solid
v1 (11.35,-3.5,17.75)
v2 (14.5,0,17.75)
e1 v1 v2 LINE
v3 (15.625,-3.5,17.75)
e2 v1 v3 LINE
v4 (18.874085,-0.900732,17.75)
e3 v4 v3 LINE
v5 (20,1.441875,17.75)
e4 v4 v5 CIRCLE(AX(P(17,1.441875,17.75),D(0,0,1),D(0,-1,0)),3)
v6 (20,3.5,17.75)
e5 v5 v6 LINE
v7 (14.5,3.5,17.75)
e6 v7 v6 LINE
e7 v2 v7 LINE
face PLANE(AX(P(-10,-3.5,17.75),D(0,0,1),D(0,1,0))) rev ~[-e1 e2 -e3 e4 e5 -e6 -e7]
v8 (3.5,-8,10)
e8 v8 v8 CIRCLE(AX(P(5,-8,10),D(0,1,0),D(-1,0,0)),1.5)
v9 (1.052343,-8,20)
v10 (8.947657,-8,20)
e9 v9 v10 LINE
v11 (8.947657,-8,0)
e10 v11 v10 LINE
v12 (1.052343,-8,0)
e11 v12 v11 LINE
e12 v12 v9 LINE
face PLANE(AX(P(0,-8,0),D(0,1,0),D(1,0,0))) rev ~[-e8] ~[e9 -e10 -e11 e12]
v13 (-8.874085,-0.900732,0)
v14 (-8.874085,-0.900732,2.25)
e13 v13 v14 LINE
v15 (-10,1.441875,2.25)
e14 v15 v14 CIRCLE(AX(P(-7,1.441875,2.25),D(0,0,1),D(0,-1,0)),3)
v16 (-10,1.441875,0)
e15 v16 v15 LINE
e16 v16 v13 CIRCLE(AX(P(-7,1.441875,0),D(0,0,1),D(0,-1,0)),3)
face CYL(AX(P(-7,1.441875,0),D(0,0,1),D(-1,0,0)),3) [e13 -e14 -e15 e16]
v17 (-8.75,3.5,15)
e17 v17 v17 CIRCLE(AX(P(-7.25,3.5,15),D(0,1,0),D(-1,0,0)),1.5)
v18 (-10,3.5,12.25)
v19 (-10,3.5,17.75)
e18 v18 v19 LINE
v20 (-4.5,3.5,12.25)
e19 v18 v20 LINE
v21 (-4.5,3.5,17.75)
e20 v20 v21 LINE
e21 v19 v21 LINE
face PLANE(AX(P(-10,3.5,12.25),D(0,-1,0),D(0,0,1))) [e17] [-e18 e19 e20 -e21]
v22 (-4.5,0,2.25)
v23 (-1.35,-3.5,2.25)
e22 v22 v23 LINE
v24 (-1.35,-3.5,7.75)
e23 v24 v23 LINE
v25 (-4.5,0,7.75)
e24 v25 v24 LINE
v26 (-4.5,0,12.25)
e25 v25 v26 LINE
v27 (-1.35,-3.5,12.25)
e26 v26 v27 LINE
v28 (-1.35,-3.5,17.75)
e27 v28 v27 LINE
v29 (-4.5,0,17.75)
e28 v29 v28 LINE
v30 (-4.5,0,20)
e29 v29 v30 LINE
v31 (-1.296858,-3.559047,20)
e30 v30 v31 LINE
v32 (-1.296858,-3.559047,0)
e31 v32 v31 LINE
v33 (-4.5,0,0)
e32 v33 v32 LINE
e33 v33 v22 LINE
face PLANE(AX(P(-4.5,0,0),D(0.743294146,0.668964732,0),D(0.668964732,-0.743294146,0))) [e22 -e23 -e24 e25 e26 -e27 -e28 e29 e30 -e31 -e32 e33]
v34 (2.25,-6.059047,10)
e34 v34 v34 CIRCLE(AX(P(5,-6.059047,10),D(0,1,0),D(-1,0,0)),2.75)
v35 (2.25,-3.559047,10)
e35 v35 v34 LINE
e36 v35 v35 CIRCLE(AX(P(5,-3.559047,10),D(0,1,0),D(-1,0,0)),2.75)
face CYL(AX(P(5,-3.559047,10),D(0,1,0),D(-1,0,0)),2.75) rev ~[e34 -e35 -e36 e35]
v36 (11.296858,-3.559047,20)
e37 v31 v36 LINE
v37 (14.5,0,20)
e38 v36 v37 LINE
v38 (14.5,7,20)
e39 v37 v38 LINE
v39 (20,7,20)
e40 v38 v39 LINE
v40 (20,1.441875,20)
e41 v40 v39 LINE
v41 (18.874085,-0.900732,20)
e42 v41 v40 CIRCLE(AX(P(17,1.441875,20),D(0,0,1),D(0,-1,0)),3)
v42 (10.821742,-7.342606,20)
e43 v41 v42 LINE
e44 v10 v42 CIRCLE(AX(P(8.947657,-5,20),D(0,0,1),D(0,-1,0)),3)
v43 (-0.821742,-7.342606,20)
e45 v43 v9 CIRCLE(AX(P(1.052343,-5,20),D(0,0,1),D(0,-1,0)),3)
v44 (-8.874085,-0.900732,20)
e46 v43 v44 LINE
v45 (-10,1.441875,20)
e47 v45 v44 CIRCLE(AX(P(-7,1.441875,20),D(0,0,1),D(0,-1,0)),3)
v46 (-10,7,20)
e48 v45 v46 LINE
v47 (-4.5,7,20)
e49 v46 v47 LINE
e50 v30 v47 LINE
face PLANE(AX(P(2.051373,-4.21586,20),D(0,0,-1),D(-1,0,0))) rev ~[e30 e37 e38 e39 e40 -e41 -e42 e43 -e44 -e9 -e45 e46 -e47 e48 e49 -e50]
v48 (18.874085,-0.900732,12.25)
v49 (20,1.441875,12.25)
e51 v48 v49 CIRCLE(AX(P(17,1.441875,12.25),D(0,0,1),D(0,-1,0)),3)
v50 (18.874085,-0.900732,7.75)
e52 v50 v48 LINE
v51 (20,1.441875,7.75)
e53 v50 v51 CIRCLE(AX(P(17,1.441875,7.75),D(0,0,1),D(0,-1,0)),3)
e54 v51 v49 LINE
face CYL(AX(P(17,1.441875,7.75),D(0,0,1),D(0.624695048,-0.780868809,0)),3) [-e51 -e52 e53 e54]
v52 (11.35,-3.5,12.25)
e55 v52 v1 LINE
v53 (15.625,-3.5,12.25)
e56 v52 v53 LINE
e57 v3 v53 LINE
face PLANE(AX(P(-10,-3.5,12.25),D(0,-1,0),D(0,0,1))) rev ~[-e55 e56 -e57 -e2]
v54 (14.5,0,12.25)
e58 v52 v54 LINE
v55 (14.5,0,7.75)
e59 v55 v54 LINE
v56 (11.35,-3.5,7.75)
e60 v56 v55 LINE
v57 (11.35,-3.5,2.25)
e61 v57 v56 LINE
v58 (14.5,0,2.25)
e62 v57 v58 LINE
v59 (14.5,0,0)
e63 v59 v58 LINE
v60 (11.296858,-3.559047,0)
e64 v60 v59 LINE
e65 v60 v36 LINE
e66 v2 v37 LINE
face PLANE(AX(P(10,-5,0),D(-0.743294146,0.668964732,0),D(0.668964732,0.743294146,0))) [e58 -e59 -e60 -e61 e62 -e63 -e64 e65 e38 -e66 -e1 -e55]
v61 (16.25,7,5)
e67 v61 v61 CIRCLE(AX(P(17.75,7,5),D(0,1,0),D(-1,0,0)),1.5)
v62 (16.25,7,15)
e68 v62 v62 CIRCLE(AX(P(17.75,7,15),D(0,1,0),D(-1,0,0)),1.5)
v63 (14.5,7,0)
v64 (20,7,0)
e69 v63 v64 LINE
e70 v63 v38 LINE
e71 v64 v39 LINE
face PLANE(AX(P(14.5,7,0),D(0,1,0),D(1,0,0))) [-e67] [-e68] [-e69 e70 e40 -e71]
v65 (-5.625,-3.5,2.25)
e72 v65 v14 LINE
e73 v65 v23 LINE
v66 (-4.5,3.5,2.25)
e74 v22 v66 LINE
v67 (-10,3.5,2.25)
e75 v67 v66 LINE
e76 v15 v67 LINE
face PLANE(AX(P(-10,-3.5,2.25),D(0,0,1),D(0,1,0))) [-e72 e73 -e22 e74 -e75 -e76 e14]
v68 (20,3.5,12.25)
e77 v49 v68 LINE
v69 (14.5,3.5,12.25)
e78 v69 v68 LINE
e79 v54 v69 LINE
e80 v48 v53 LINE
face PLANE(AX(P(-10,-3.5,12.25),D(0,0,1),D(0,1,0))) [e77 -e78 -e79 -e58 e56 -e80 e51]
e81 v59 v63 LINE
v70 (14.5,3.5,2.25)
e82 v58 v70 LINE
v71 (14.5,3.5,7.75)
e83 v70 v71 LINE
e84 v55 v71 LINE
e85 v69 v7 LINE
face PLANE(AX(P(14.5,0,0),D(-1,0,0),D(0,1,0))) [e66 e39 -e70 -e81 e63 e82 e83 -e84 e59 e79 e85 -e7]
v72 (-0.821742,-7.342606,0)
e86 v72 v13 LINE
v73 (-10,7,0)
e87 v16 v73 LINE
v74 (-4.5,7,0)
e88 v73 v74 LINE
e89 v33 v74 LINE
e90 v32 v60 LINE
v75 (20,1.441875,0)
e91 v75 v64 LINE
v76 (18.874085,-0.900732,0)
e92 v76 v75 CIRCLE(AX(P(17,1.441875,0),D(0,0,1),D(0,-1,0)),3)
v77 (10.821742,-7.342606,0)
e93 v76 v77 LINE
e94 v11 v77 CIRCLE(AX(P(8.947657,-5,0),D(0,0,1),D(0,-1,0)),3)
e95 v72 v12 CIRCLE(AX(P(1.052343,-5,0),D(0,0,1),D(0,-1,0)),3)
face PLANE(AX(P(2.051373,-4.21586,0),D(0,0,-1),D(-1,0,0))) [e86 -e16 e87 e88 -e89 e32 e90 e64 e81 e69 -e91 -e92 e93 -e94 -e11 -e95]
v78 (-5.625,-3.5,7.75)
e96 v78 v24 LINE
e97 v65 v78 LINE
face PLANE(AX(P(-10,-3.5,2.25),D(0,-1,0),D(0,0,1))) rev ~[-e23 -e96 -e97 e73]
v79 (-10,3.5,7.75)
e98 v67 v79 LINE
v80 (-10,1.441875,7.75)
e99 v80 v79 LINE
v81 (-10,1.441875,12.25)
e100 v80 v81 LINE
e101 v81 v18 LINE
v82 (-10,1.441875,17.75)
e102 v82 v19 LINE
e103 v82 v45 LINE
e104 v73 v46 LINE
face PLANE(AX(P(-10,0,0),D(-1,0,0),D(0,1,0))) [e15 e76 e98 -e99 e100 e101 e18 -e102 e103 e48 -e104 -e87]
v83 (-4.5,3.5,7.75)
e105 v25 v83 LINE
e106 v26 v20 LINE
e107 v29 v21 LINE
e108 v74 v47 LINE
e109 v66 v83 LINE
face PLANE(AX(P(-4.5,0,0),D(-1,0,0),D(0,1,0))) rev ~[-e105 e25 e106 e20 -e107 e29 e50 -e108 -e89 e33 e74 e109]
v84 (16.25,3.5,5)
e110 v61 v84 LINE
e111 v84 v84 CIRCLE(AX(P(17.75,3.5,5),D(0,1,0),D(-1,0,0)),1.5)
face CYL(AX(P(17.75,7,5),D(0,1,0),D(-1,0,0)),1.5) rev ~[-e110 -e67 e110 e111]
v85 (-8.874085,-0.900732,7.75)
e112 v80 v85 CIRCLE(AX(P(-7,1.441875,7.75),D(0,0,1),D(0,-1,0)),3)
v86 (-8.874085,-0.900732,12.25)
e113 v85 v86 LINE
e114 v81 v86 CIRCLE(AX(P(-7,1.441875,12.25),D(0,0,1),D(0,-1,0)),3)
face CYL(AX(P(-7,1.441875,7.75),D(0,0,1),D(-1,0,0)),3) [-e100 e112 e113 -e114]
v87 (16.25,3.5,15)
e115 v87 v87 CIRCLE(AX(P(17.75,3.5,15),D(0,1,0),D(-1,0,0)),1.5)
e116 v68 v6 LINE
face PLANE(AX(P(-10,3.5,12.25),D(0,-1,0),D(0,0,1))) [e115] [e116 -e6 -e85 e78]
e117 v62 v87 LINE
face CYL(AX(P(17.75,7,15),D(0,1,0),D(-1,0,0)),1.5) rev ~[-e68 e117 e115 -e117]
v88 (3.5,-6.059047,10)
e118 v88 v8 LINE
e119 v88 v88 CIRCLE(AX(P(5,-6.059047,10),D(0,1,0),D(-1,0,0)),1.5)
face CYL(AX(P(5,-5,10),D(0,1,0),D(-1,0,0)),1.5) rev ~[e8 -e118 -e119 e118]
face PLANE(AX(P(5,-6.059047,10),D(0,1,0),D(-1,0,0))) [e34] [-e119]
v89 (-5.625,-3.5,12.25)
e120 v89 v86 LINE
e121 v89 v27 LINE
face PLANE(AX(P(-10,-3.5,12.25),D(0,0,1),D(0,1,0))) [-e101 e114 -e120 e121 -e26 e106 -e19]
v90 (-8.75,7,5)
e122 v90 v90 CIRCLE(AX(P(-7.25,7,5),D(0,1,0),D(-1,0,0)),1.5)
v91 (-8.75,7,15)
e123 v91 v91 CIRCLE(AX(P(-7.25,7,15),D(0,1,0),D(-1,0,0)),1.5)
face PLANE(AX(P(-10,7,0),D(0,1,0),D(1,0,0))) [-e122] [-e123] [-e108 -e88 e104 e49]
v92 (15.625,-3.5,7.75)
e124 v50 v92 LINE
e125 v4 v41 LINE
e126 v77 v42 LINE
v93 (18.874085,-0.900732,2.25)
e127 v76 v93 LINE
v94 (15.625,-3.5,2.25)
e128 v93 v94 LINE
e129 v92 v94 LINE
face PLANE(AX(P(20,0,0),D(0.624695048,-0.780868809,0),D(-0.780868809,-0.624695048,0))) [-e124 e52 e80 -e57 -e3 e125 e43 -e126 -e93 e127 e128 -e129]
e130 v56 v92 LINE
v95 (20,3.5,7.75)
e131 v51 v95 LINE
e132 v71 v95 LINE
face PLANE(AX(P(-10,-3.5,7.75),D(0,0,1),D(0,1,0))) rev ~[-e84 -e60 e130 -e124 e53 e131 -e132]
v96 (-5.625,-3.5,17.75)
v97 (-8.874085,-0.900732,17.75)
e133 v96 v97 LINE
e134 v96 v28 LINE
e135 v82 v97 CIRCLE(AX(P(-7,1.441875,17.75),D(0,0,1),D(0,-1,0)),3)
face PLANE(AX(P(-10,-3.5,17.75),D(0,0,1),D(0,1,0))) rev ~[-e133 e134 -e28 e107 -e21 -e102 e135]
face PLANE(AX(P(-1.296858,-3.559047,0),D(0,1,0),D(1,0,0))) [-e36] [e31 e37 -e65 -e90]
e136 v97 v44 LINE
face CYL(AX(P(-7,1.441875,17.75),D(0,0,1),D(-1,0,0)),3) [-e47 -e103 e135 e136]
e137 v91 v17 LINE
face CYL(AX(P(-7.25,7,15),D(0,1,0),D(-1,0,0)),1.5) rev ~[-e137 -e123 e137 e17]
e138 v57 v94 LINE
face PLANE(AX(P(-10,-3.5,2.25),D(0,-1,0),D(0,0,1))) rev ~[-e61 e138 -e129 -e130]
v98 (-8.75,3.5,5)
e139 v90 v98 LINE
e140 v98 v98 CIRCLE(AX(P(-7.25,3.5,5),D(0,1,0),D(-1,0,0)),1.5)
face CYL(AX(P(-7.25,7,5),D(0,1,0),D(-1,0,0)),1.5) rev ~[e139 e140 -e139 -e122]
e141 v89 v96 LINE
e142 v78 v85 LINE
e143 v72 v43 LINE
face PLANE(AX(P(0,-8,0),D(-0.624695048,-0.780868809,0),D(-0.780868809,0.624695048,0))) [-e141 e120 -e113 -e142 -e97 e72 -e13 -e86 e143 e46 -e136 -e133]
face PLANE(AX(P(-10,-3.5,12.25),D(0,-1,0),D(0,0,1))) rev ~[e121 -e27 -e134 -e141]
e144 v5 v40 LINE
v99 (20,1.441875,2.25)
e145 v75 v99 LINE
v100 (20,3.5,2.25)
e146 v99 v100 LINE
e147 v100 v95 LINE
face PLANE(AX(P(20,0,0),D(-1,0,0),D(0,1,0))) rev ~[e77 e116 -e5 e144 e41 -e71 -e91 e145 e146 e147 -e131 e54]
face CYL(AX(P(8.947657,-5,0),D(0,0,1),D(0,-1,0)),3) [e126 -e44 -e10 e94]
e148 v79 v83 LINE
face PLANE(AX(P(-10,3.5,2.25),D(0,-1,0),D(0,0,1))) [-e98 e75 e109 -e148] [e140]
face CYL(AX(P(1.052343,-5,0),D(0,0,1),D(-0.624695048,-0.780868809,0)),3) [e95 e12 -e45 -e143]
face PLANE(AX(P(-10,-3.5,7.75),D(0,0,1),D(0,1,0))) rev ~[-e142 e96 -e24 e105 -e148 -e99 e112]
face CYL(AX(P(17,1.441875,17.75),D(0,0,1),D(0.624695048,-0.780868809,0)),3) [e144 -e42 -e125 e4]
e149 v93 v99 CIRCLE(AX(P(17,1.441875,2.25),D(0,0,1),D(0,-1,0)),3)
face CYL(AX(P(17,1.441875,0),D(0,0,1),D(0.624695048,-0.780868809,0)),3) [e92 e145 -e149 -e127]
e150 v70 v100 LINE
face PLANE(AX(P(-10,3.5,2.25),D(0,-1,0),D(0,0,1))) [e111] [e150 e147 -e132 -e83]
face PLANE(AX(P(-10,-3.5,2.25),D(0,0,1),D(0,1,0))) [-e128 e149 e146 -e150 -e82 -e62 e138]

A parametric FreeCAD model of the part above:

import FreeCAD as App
import Part
import Sketcher

V = App.Vector
Q = App.Units.Quantity


def edges_at(feature, points):
    """Names of the edges that pass closest to the given points."""
    edges = feature.Shape.Edges
    near = lambda p: min(range(len(edges)), key=lambda i: edges[i].distToShape(Part.Vertex(*p))[0])
    return sorted({f"Edge{near(p) + 1}" for p in points})

doc = App.newDocument("Part")
body = doc.addObject("PartDesign::Body", "Body")

# Sketch on XY plane
sketch1 = doc.addObject("Sketcher::SketchObject", "Sketch")
body.addObject(sketch1)
sketch1.AttachmentSupport = (doc.XY_Plane, [""])
sketch1.MapMode = "FlatFace"
sketch1.addGeometry(Part.LineSegment(V(-10, 7, 0), V(-10, 0, 0)), False)
sketch1.addGeometry(Part.LineSegment(V(-10, 0, 0), V(0, -8, 0)), False)
sketch1.addGeometry(Part.LineSegment(V(0, -8, 0), V(10, -8, 0)), False)
sketch1.addGeometry(Part.LineSegment(V(10, -8, 0), V(20, 0, 0)), False)
sketch1.addGeometry(Part.LineSegment(V(20, 0, 0), V(20, 7, 0)), False)
sketch1.addGeometry(Part.LineSegment(V(20, 7, 0), V(14.5, 7, 0)), False)
sketch1.addGeometry(Part.LineSegment(V(14.5, 7, 0), V(14.5, 0, 0)), False)
sketch1.addGeometry(Part.LineSegment(V(14.5, 0, 0), V(10, -5, 0)), False)
sketch1.addGeometry(Part.LineSegment(V(10, -5, 0), V(0, -5, 0)), False)
sketch1.addGeometry(Part.LineSegment(V(0, -5, 0), V(-4.5, 0, 0)), False)
sketch1.addGeometry(Part.LineSegment(V(-4.5, 0, 0), V(-4.5, 7, 0)), False)
sketch1.addGeometry(Part.LineSegment(V(-4.5, 7, 0), V(-10, 7, 0)), False)
sketch1.addConstraint(Sketcher.Constraint("Coincident", 0, 2, 1, 1))
sketch1.addConstraint(Sketcher.Constraint("Coincident", 1, 2, 2, 1))
sketch1.addConstraint(Sketcher.Constraint("Coincident", 2, 2, 3, 1))
sketch1.addConstraint(Sketcher.Constraint("Coincident", 3, 2, 4, 1))
sketch1.addConstraint(Sketcher.Constraint("Coincident", 4, 2, 5, 1))
sketch1.addConstraint(Sketcher.Constraint("Coincident", 5, 2, 6, 1))
sketch1.addConstraint(Sketcher.Constraint("Coincident", 6, 2, 7, 1))
sketch1.addConstraint(Sketcher.Constraint("Coincident", 7, 2, 8, 1))
sketch1.addConstraint(Sketcher.Constraint("Coincident", 8, 2, 9, 1))
sketch1.addConstraint(Sketcher.Constraint("Coincident", 9, 2, 10, 1))
sketch1.addConstraint(Sketcher.Constraint("Coincident", 10, 2, 11, 1))
sketch1.addConstraint(Sketcher.Constraint("Coincident", 11, 2, 0, 1))
sketch1.addConstraint(Sketcher.Constraint("Vertical", 0))
sketch1.addConstraint(Sketcher.Constraint("Horizontal", 2))
sketch1.addConstraint(Sketcher.Constraint("Vertical", 4))
sketch1.addConstraint(Sketcher.Constraint("Horizontal", 5))
sketch1.addConstraint(Sketcher.Constraint("Vertical", 6))
sketch1.addConstraint(Sketcher.Constraint("Horizontal", 8))
sketch1.addConstraint(Sketcher.Constraint("Vertical", 10))
sketch1.addConstraint(Sketcher.Constraint("Horizontal", 11))
sketch1.addConstraint(Sketcher.Constraint("PointOnObject", 0, 2, -1))
sketch1.addConstraint(Sketcher.Constraint("PointOnObject", 1, 2, -2))
sketch1.addConstraint(Sketcher.Constraint("PointOnObject", 3, 2, -1))
sketch1.addConstraint(Sketcher.Constraint("PointOnObject", 6, 2, -1))
sketch1.addConstraint(Sketcher.Constraint("PointOnObject", 8, 2, -2))
sketch1.addConstraint(Sketcher.Constraint("PointOnObject", 9, 2, -1))
sketch1.addConstraint(Sketcher.Constraint("Horizontal", 5, 2, 10, 2))
sketch1.addConstraint(Sketcher.Constraint("Vertical", 2, 2, 7, 2))
sketch1.addConstraint(Sketcher.Constraint("Equal", 5, 11))
sketch1.addConstraint(Sketcher.Constraint("Equal", 1, 3))
sketch1.addConstraint(Sketcher.Constraint("DistanceX", 2, 1, 2, 2, Q("10 mm")))
sketch1.addConstraint(Sketcher.Constraint("DistanceY", 0, 2, 0, 1, Q("7 mm")))
sketch1.addConstraint(Sketcher.Constraint("DistanceX", 5, 2, 5, 1, Q("5.5 mm")))
sketch1.addConstraint(Sketcher.Constraint("DistanceX", 0, 2, -1, 1, Q("10 mm")))
sketch1.addConstraint(Sketcher.Constraint("DistanceY", 1, 2, -1, 1, Q("8 mm")))
sketch1.addConstraint(Sketcher.Constraint("DistanceY", 7, 2, -1, 1, Q("5 mm")))
pad1 = doc.addObject("PartDesign::Pad", "Pad")
body.addObject(pad1)
pad1.Profile = sketch1
pad1.Length = 20

# Sketch on YZ plane
sketch2 = doc.addObject("Sketcher::SketchObject", "Sketch001")
body.addObject(sketch2)
sketch2.AttachmentSupport = (doc.YZ_Plane, [""])
sketch2.MapMode = "FlatFace"
sketch2.AttachmentOffset = App.Placement(V(0, 0, -10), App.Rotation())
sketch2.addGeometry(Part.LineSegment(V(3.5, 12.25, 0), V(-3.5, 12.25, 0)), False)
sketch2.addGeometry(Part.LineSegment(V(-3.5, 12.25, 0), V(-3.5, 17.75, 0)), False)
sketch2.addGeometry(Part.LineSegment(V(-3.5, 17.75, 0), V(3.5, 17.75, 0)), False)
sketch2.addGeometry(Part.LineSegment(V(3.5, 17.75, 0), V(3.5, 12.25, 0)), False)
sketch2.addGeometry(Part.LineSegment(V(3.5, 2.25, 0), V(-3.5, 2.25, 0)), False)
sketch2.addGeometry(Part.LineSegment(V(-3.5, 2.25, 0), V(-3.5, 7.75, 0)), False)
sketch2.addGeometry(Part.LineSegment(V(-3.5, 7.75, 0), V(3.5, 7.75, 0)), False)
sketch2.addGeometry(Part.LineSegment(V(3.5, 7.75, 0), V(3.5, 2.25, 0)), False)
sketch2.addConstraint(Sketcher.Constraint("Coincident", 0, 2, 1, 1))
sketch2.addConstraint(Sketcher.Constraint("Coincident", 1, 2, 2, 1))
sketch2.addConstraint(Sketcher.Constraint("Coincident", 2, 2, 3, 1))
sketch2.addConstraint(Sketcher.Constraint("Coincident", 3, 2, 0, 1))
sketch2.addConstraint(Sketcher.Constraint("Coincident", 4, 2, 5, 1))
sketch2.addConstraint(Sketcher.Constraint("Coincident", 5, 2, 6, 1))
sketch2.addConstraint(Sketcher.Constraint("Coincident", 6, 2, 7, 1))
sketch2.addConstraint(Sketcher.Constraint("Coincident", 7, 2, 4, 1))
sketch2.addConstraint(Sketcher.Constraint("Horizontal", 0))
sketch2.addConstraint(Sketcher.Constraint("Vertical", 1))
sketch2.addConstraint(Sketcher.Constraint("Horizontal", 2))
sketch2.addConstraint(Sketcher.Constraint("Vertical", 3))
sketch2.addConstraint(Sketcher.Constraint("Horizontal", 4))
sketch2.addConstraint(Sketcher.Constraint("Vertical", 5))
sketch2.addConstraint(Sketcher.Constraint("Horizontal", 6))
sketch2.addConstraint(Sketcher.Constraint("Vertical", 7))
sketch2.addConstraint(Sketcher.Constraint("Vertical", 1, 2, 4, 2))
sketch2.addConstraint(Sketcher.Constraint("Vertical", 3, 2, 6, 2))
sketch2.addConstraint(Sketcher.Constraint("Equal", 3, 5))
sketch2.addConstraint(Sketcher.Constraint("DistanceX", 0, 2, 0, 1, Q("7 mm")))
sketch2.addConstraint(Sketcher.Constraint("DistanceY", 1, 1, 1, 2, Q("5.5 mm")))
sketch2.addConstraint(Sketcher.Constraint("DistanceY", 4, 2, 0, 2, Q("10 mm")))
sketch2.addConstraint(Sketcher.Constraint("DistanceX", 0, 2, -1, 1, Q("3.5 mm")))
sketch2.addConstraint(Sketcher.Constraint("DistanceY", -1, 1, 0, 2, Q("12.25 mm")))
pocket1 = doc.addObject("PartDesign::Pocket", "Pocket")
body.addObject(pocket1)
pocket1.Profile = sketch2
pocket1.Type = "ThroughAll"
pocket1.Reversed = True

# Sketch on XZ plane
sketch3 = doc.addObject("Sketcher::SketchObject", "Sketch002")
body.addObject(sketch3)
sketch3.AttachmentSupport = (doc.XZ_Plane, [""])
sketch3.MapMode = "FlatFace"
sketch3.AttachmentOffset = App.Placement(V(0, 0, -7), App.Rotation())
sketch3.addGeometry(Part.Circle(V(-7.25, 5, 0), V(0, 0, 1), 1.5), False)
sketch3.addGeometry(Part.Circle(V(17.75, 5, 0), V(0, 0, 1), 1.5), False)
sketch3.addGeometry(Part.Circle(V(17.75, 15, 0), V(0, 0, 1), 1.5), False)
sketch3.addGeometry(Part.Circle(V(-7.25, 15, 0), V(0, 0, 1), 1.5), False)
sketch3.addConstraint(Sketcher.Constraint("Equal", 0, 1))
sketch3.addConstraint(Sketcher.Constraint("Equal", 1, 2))
sketch3.addConstraint(Sketcher.Constraint("Equal", 2, 3))
sketch3.addConstraint(Sketcher.Constraint("Horizontal", 0, 3, 1, 3))
sketch3.addConstraint(Sketcher.Constraint("Horizontal", 2, 3, 3, 3))
sketch3.addConstraint(Sketcher.Constraint("Vertical", 1, 3, 2, 3))
sketch3.addConstraint(Sketcher.Constraint("Vertical", 0, 3, 3, 3))
sketch3.addConstraint(Sketcher.Constraint("Diameter", 0, Q("3 mm")))
sketch3.addConstraint(Sketcher.Constraint("DistanceY", -1, 1, 0, 3, Q("5 mm")))
sketch3.addConstraint(Sketcher.Constraint("DistanceY", -1, 1, 2, 3, Q("15 mm")))
sketch3.addConstraint(Sketcher.Constraint("DistanceX", 0, 3, 1, 3, Q("25 mm")))
sketch3.addConstraint(Sketcher.Constraint("DistanceX", 0, 3, -1, 1, Q("7.25 mm")))
pocket2 = doc.addObject("PartDesign::Pocket", "Pocket001")
body.addObject(pocket2)
pocket2.Profile = sketch3
pocket2.Type = "ThroughAll"
pocket2.Reversed = True
doc.recompute()

fillet = doc.addObject("PartDesign::Fillet", "Fillet")
body.addObject(fillet)
fillet.Base = (pocket2, edges_at(pocket2, [
    (20, 0, 18.875),
    (10, -8, 10),
    (0, -8, 10),
    (-10, 0, 18.875),
    (20, 0, 10),
    (20, 0, 1.125),
    (-10, 0, 10),
    (-10, 0, 1.125),
]))
fillet.Radius = 3

# Sketch on XZ plane
sketch4 = doc.addObject("Sketcher::SketchObject", "Sketch003")
body.addObject(sketch4)
sketch4.AttachmentSupport = (doc.XZ_Plane, [""])
sketch4.MapMode = "FlatFace"
sketch4.AttachmentOffset = App.Placement(V(0, 0, 5), App.Rotation())
sketch4.addGeometry(Part.Circle(V(5, 10, 0), V(0, 0, 1), 1.5), False)
sketch4.addConstraint(Sketcher.Constraint("Diameter", 0, Q("3 mm")))
sketch4.addConstraint(Sketcher.Constraint("DistanceX", -1, 1, 0, 3, Q("5 mm")))
sketch4.addConstraint(Sketcher.Constraint("DistanceY", -1, 1, 0, 3, Q("10 mm")))
pocket3 = doc.addObject("PartDesign::Pocket", "Pocket002")
body.addObject(pocket3)
pocket3.Profile = sketch4
pocket3.Type = "ThroughAll"
pocket3.Reversed = True

# Sketch on XY plane
sketch5 = doc.addObject("Sketcher::SketchObject", "Sketch004")
body.addObject(sketch5)
sketch5.AttachmentSupport = (doc.XY_Plane, [""])
sketch5.MapMode = "FlatFace"
sketch5.addGeometry(Part.LineSegment(V(0, -5, 0), V(-1.296858, -3.559047, 0)), False)
sketch5.addGeometry(Part.LineSegment(V(-1.296858, -3.559047, 0), V(11.296858, -3.559047, 0)), False)
sketch5.addGeometry(Part.LineSegment(V(11.296858, -3.559047, 0), V(10, -5, 0)), False)
sketch5.addGeometry(Part.LineSegment(V(10, -5, 0), V(0, -5, 0)), False)
sketch5.addConstraint(Sketcher.Constraint("Coincident", 0, 2, 1, 1))
sketch5.addConstraint(Sketcher.Constraint("Coincident", 1, 2, 2, 1))
sketch5.addConstraint(Sketcher.Constraint("Coincident", 2, 2, 3, 1))
sketch5.addConstraint(Sketcher.Constraint("Coincident", 3, 2, 0, 1))
sketch5.addConstraint(Sketcher.Constraint("Horizontal", 1))
sketch5.addConstraint(Sketcher.Constraint("Horizontal", 3))
sketch5.addConstraint(Sketcher.Constraint("PointOnObject", 3, 2, -2))
sketch5.addConstraint(Sketcher.Constraint("Equal", 0, 2))
sketch5.addConstraint(Sketcher.Constraint("DistanceX", 3, 2, 3, 1, Q("10 mm")))
sketch5.addConstraint(Sketcher.Constraint("DistanceY", 2, 2, -1, 1, Q("5 mm")))
sketch5.addConstraint(Sketcher.Constraint("DistanceX", 1, 1, 1, 2, Q("12.593716 mm")))
sketch5.addConstraint(Sketcher.Constraint("Distance", 0, Q("1.938604 mm")))
pad2 = doc.addObject("PartDesign::Pad", "Pad001")
body.addObject(pad2)
pad2.Profile = sketch5
pad2.Length = 20

# Sketch on XZ plane
sketch6 = doc.addObject("Sketcher::SketchObject", "Sketch005")
body.addObject(sketch6)
sketch6.AttachmentSupport = (doc.XZ_Plane, [""])
sketch6.MapMode = "FlatFace"
sketch6.AttachmentOffset = App.Placement(V(0, 0, 3.559047), App.Rotation())
sketch6.addGeometry(Part.Circle(V(5, 10, 0), V(0, 0, 1), 2.75), False)
sketch6.addConstraint(Sketcher.Constraint("Diameter", 0, Q("5.5 mm")))
sketch6.addConstraint(Sketcher.Constraint("DistanceX", -1, 1, 0, 3, Q("5 mm")))
sketch6.addConstraint(Sketcher.Constraint("DistanceY", -1, 1, 0, 3, Q("10 mm")))
pocket4 = doc.addObject("PartDesign::Pocket", "Pocket003")
body.addObject(pocket4)
pocket4.Profile = sketch6
pocket4.Length = 2.5
pocket4.Reversed = True

doc.recompute()
